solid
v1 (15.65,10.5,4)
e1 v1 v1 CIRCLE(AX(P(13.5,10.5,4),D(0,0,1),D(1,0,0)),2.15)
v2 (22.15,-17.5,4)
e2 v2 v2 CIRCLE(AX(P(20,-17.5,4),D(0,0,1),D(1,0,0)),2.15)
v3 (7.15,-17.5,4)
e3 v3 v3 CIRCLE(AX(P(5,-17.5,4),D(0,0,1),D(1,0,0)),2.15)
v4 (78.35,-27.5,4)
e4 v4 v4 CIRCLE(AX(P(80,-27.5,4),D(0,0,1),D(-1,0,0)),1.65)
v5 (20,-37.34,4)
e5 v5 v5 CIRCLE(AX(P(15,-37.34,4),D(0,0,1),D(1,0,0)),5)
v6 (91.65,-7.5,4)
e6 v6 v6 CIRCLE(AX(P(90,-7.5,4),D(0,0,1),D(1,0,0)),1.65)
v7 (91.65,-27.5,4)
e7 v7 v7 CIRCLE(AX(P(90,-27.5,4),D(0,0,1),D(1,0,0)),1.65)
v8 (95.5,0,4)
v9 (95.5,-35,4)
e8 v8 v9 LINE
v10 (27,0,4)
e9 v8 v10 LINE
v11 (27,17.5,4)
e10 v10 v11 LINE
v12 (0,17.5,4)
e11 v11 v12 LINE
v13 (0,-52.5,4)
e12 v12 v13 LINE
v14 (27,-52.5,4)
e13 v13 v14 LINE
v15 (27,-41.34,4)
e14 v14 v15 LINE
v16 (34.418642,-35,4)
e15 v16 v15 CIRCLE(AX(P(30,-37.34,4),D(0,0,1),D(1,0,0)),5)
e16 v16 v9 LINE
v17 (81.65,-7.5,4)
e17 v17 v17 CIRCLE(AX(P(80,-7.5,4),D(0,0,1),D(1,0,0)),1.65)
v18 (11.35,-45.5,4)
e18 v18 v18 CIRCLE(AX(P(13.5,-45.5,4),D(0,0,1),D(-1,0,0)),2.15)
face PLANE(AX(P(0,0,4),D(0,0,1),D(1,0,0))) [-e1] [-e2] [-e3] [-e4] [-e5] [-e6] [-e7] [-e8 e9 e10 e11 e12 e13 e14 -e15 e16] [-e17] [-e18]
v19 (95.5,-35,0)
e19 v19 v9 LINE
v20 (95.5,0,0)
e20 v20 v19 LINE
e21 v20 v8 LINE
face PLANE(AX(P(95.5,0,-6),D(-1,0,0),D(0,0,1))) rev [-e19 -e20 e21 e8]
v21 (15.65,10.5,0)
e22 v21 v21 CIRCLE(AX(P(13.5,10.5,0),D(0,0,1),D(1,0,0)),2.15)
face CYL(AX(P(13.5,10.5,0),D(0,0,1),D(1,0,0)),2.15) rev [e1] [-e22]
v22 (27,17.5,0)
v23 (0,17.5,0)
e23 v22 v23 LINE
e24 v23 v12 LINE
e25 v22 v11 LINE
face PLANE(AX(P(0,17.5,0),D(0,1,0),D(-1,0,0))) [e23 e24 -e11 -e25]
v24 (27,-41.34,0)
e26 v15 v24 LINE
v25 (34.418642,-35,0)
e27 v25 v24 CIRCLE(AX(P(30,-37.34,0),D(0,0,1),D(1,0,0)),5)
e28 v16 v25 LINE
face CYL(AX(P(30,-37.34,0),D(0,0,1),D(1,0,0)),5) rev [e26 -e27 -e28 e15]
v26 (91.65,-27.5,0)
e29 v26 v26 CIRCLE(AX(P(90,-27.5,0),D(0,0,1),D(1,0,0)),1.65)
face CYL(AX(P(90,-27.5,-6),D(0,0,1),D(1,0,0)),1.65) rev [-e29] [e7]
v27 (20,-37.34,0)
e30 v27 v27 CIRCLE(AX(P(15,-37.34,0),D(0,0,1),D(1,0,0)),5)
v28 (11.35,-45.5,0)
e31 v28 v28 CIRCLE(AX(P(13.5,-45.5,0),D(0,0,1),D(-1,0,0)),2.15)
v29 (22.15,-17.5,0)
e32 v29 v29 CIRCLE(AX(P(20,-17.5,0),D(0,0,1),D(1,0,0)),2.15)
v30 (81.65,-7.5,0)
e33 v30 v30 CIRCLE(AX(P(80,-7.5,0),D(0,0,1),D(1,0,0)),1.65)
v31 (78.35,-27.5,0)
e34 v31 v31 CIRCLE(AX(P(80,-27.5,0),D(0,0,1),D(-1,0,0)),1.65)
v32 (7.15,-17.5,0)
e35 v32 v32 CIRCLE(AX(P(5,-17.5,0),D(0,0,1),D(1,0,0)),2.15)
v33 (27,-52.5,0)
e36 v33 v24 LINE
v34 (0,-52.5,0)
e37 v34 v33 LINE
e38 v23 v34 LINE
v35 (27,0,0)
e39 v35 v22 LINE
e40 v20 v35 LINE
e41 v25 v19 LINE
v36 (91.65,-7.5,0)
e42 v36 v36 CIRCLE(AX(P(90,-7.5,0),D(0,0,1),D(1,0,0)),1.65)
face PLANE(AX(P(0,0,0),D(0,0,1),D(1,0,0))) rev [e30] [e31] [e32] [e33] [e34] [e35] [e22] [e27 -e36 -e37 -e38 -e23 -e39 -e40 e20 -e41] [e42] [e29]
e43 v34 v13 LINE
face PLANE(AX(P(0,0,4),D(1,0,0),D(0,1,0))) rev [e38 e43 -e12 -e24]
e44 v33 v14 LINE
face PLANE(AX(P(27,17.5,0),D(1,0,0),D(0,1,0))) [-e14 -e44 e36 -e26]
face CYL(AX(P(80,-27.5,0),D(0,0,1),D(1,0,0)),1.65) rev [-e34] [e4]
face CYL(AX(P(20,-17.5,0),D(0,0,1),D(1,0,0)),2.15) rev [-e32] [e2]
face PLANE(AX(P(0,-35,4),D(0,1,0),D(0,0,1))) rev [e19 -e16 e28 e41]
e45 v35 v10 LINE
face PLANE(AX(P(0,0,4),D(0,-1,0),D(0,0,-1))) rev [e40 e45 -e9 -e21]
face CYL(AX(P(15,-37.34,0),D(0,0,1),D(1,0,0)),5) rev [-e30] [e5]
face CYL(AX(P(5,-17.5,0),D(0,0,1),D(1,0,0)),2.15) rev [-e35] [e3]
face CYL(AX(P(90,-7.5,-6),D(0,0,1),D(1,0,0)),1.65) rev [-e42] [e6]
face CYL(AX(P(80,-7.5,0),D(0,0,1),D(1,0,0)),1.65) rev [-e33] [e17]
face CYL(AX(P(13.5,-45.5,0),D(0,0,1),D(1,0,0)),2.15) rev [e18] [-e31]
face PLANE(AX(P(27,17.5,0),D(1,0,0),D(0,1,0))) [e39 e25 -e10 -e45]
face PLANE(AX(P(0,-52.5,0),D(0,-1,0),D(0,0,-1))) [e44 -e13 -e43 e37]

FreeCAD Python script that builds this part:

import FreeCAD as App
import Part
import Sketcher

V = App.Vector
Q = App.Units.Quantity

doc = App.newDocument("Part")
body = doc.addObject("PartDesign::Body", "Body")

# Sketch on XY plane
sketch1 = body.newObject("Sketcher::SketchObject", "Sketch")
sketch1.AttachmentSupport = (doc.getObject("XY_Plane"), [""])
sketch1.MapMode = "FlatFace"
sketch1.addGeometry(Part.LineSegment(V(0, 0, 0), V(0, -35, 0)), False)
sketch1.addGeometry(Part.LineSegment(V(0, -35, 0), V(100, -35, 0)), False)
sketch1.addGeometry(Part.LineSegment(V(100, -35, 0), V(100, 0, 0)), False)
sketch1.addGeometry(Part.LineSegment(V(100, 0, 0), V(0, 0, 0)), False)
sketch1.addConstraint(Sketcher.Constraint("Coincident", 0, 2, 1, 1))
sketch1.addConstraint(Sketcher.Constraint("Coincident", 1, 2, 2, 1))
sketch1.addConstraint(Sketcher.Constraint("Coincident", 2, 2, 3, 1))
sketch1.addConstraint(Sketcher.Constraint("Coincident", 3, 2, 0, 1))
sketch1.addConstraint(Sketcher.Constraint("Vertical", 0))
sketch1.addConstraint(Sketcher.Constraint("Horizontal", 1))
sketch1.addConstraint(Sketcher.Constraint("Vertical", 2))
sketch1.addConstraint(Sketcher.Constraint("Horizontal", 3))
sketch1.addConstraint(Sketcher.Constraint("Coincident", 3, 2, -1, 1))
sketch1.addConstraint(Sketcher.Constraint("DistanceX", 1, 1, 1, 2, Q("100 mm")))
sketch1.addConstraint(Sketcher.Constraint("DistanceY", 0, 2, 0, 1, Q("35 mm")))
pad1 = body.newObject("PartDesign::Pad", "Pad")
pad1.Profile = sketch1
pad1.Length = 4

# Sketch on XY plane
sketch2 = body.newObject("Sketcher::SketchObject", "Sketch001")
sketch2.AttachmentSupport = (doc.getObject("XY_Plane"), [""])
sketch2.MapMode = "FlatFace"
sketch2.AttachmentOffset = App.Placement(V(0, 0, 4), App.Rotation())
sketch2.addGeometry(Part.Circle(V(80, -7.5, 0), V(0, 0, 1), 1.65), False)
sketch2.addGeometry(Part.Circle(V(80, -27.5, 0), V(0, 0, 1), 1.65), False)
sketch2.addConstraint(Sketcher.Constraint("Equal", 0, 1))
sketch2.addConstraint(Sketcher.Constraint("Vertical", 0, 3, 1, 3))
sketch2.addConstraint(Sketcher.Constraint("Diameter", 0, Q("3.3 mm")))
sketch2.addConstraint(Sketcher.Constraint("DistanceX", -1, 1, 0, 3, Q("80 mm")))
sketch2.addConstraint(Sketcher.Constraint("DistanceY", 1, 3, 0, 3, Q("20 mm")))
sketch2.addConstraint(Sketcher.Constraint("DistanceY", 0, 3, -1, 1, Q("7.5 mm")))
pocket1 = body.newObject("PartDesign::Pocket", "Pocket")
pocket1.Profile = sketch2
pocket1.Type = "ThroughAll"

# Sketch on XY plane
sketch3 = body.newObject("Sketcher::SketchObject", "Sketch002")
sketch3.AttachmentSupport = (doc.getObject("XY_Plane"), [""])
sketch3.MapMode = "FlatFace"
sketch3.AttachmentOffset = App.Placement(V(0, 0, 4), App.Rotation())
sketch3.addGeometry(Part.Circle(V(5, -17.5, 0), V(0, 0, 1), 2.15), False)
sketch3.addGeometry(Part.Circle(V(20, -17.5, 0), V(0, 0, 1), 2.15), False)
sketch3.addConstraint(Sketcher.Constraint("Equal", 0, 1))
sketch3.addConstraint(Sketcher.Constraint("Horizontal", 0, 3, 1, 3))
sketch3.addConstraint(Sketcher.Constraint("Diameter", 0, Q("4.3 mm")))
sketch3.addConstraint(Sketcher.Constraint("DistanceX", -1, 1, 0, 3, Q("5 mm")))
sketch3.addConstraint(Sketcher.Constraint("DistanceX", -1, 1, 1, 3, Q("20 mm")))
sketch3.addConstraint(Sketcher.Constraint("DistanceY", 0, 3, -1, 1, Q("17.5 mm")))
pocket2 = body.newObject("PartDesign::Pocket", "Pocket001")
pocket2.Profile = sketch3
pocket2.Type = "ThroughAll"

# Sketch on XY plane
sketch4 = body.newObject("Sketcher::SketchObject", "Sketch003")
sketch4.AttachmentSupport = (doc.getObject("XY_Plane"), [""])
sketch4.MapMode = "FlatFace"
sketch4.AttachmentOffset = App.Placement(V(0, 0, 4), App.Rotation())
sketch4.addGeometry(Part.LineSegment(V(0, 17.5, 0), V(0, -52.5, 0)), False)
sketch4.addGeometry(Part.LineSegment(V(0, -52.5, 0), V(27, -52.5, 0)), False)
sketch4.addGeometry(Part.LineSegment(V(27, -52.5, 0), V(27, 17.5, 0)), False)
sketch4.addGeometry(Part.LineSegment(V(27, 17.5, 0), V(0, 17.5, 0)), False)
sketch4.addGeometry(Part.Circle(V(13.5, -45.5, 0), V(0, 0, 1), 2.15), False)
sketch4.addGeometry(Part.Circle(V(5, -17.5, 0), V(0, 0, 1), 2.15), False)
sketch4.addGeometry(Part.Circle(V(20, -17.5, 0), V(0, 0, 1), 2.15), False)
sketch4.addGeometry(Part.Circle(V(13.5, 10.5, 0), V(0, 0, 1), 2.15), False)
sketch4.addConstraint(Sketcher.Constraint("Coincident", 0, 2, 1, 1))
sketch4.addConstraint(Sketcher.Constraint("Coincident", 1, 2, 2, 1))
sketch4.addConstraint(Sketcher.Constraint("Coincident", 2, 2, 3, 1))
sketch4.addConstraint(Sketcher.Constraint("Coincident", 3, 2, 0, 1))
sketch4.addConstraint(Sketcher.Constraint("Vertical", 0))
sketch4.addConstraint(Sketcher.Constraint("Horizontal", 1))
sketch4.addConstraint(Sketcher.Constraint("Vertical", 2))
sketch4.addConstraint(Sketcher.Constraint("Horizontal", 3))
sketch4.addConstraint(Sketcher.Constraint("Equal", 4, 5))
sketch4.addConstraint(Sketcher.Constraint("Equal", 5, 6))
sketch4.addConstraint(Sketcher.Constraint("Equal", 6, 7))
sketch4.addConstraint(Sketcher.Constraint("PointOnObject", 0, 2, -2))
sketch4.addConstraint(Sketcher.Constraint("Horizontal", 5, 3, 6, 3))
sketch4.addConstraint(Sketcher.Constraint("Vertical", 4, 3, 7, 3))
sketch4.addConstraint(Sketcher.Constraint("Diameter", 4, Q("4.3 mm")))
sketch4.addConstraint(Sketcher.Constraint("DistanceX", 1, 1, 1, 2, Q("27 mm")))
sketch4.addConstraint(Sketcher.Constraint("DistanceY", 0, 2, 0, 1, Q("70 mm")))
sketch4.addConstraint(Sketcher.Constraint("DistanceX", -1, 1, 5, 3, Q("5 mm")))
sketch4.addConstraint(Sketcher.Constraint("DistanceX", -1, 1, 6, 3, Q("20 mm")))
sketch4.addConstraint(Sketcher.Constraint("DistanceY", 4, 3, 5, 3, Q("28 mm")))
sketch4.addConstraint(Sketcher.Constraint("DistanceY", 6, 3, 7, 3, Q("28 mm")))
sketch4.addConstraint(Sketcher.Constraint("DistanceY", 0, 2, 4, 3, Q("7 mm")))
sketch4.addConstraint(Sketcher.Constraint("DistanceX", -1, 1, 4, 3, Q("13.5 mm")))
sketch4.addConstraint(Sketcher.Constraint("DistanceY", 4, 3, -1, 1, Q("45.5 mm")))
pad2 = body.newObject("PartDesign::Pad", "Pad001")
pad2.Profile = sketch4
pad2.Length = 4
pad2.Reversed = True

# Sketch on XY plane
sketch5 = body.newObject("Sketcher::SketchObject", "Sketch004")
sketch5.AttachmentSupport = (doc.getObject("XY_Plane"), [""])
sketch5.MapMode = "FlatFace"
sketch5.AttachmentOffset = App.Placement(V(0, 0, 4), App.Rotation())
sketch5.addGeometry(Part.Circle(V(30, -37.34, 0), V(0, 0, 1), 5), False)
sketch5.addGeometry(Part.Circle(V(15, -37.34, 0), V(0, 0, 1), 5), False)
sketch5.addConstraint(Sketcher.Constraint("Equal", 0, 1))
sketch5.addConstraint(Sketcher.Constraint("Horizontal", 0, 3, 1, 3))
sketch5.addConstraint(Sketcher.Constraint("Diameter", 0, Q("10 mm")))
sketch5.addConstraint(Sketcher.Constraint("DistanceX", -1, 1, 0, 3, Q("30 mm")))
sketch5.addConstraint(Sketcher.Constraint("DistanceX", -1, 1, 1, 3, Q("15 mm")))
sketch5.addConstraint(Sketcher.Constraint("DistanceY", 0, 3, -1, 1, Q("37.34 mm")))
pocket3 = body.newObject("PartDesign::Pocket", "Pocket002")
pocket3.Profile = sketch5
pocket3.Length = 4

# Sketch on XY plane
sketch6 = body.newObject("Sketcher::SketchObject", "Sketch005")
sketch6.AttachmentSupport = (doc.getObject("XY_Plane"), [""])
sketch6.MapMode = "FlatFace"
sketch6.AttachmentOffset = App.Placement(V(0, 0, 4), App.Rotation())
sketch6.addGeometry(Part.Circle(V(90, -7.5, 0), V(0, 0, 1), 1.65), False)
sketch6.addGeometry(Part.Circle(V(90, -27.5, 0), V(0, 0, 1), 1.65), False)
sketch6.addConstraint(Sketcher.Constraint("Equal", 0, 1))
sketch6.addConstraint(Sketcher.Constraint("Vertical", 0, 3, 1, 3))
sketch6.addConstraint(Sketcher.Constraint("Diameter", 0, Q("3.3 mm")))
sketch6.addConstraint(Sketcher.Constraint("DistanceX", -1, 1, 0, 3, Q("90 mm")))
sketch6.addConstraint(Sketcher.Constraint("DistanceY", 1, 3, 0, 3, Q("20 mm")))
sketch6.addConstraint(Sketcher.Constraint("DistanceY", 0, 3, -1, 1, Q("7.5 mm")))
pocket4 = body.newObject("PartDesign::Pocket", "Pocket003")
pocket4.Profile = sketch6
pocket4.Length = 10

# Sketch on XY plane
sketch7 = body.newObject("Sketcher::SketchObject", "Sketch006")
sketch7.AttachmentSupport = (doc.getObject("XY_Plane"), [""])
sketch7.MapMode = "FlatFace"
sketch7.AttachmentOffset = App.Placement(V(0, 0, 4), App.Rotation())
sketch7.addGeometry(Part.LineSegment(V(95.5, 0, 0), V(95.5, -35, 0)), False)
sketch7.addGeometry(Part.LineSegment(V(95.5, -35, 0), V(100, -35, 0)), False)
sketch7.addGeometry(Part.LineSegment(V(100, -35, 0), V(100, 0, 0)), False)
sketch7.addGeometry(Part.LineSegment(V(100, 0, 0), V(95.5, 0, 0)), False)
sketch7.addConstraint(Sketcher.Constraint("Coincident", 0, 2, 1, 1))
sketch7.addConstraint(Sketcher.Constraint("Coincident", 1, 2, 2, 1))
sketch7.addConstraint(Sketcher.Constraint("Coincident", 2, 2, 3, 1))
sketch7.addConstraint(Sketcher.Constraint("Coincident", 3, 2, 0, 1))
sketch7.addConstraint(Sketcher.Constraint("Vertical", 0))
sketch7.addConstraint(Sketcher.Constraint("Horizontal", 1))
sketch7.addConstraint(Sketcher.Constraint("Vertical", 2))
sketch7.addConstraint(Sketcher.Constraint("Horizontal", 3))
sketch7.addConstraint(Sketcher.Constraint("PointOnObject", 2, 2, -1))
sketch7.addConstraint(Sketcher.Constraint("DistanceY", 0, 2, 0, 1, Q("35 mm")))
sketch7.addConstraint(Sketcher.Constraint("DistanceX", 1, 1, 1, 2, Q("4.5 mm")))
sketch7.addConstraint(Sketcher.Constraint("DistanceX", -1, 1, 1, 2, Q("100 mm")))
pocket5 = body.newObject("PartDesign::Pocket", "Pocket004")
pocket5.Profile = sketch7
pocket5.Length = 10

doc.recompute()
